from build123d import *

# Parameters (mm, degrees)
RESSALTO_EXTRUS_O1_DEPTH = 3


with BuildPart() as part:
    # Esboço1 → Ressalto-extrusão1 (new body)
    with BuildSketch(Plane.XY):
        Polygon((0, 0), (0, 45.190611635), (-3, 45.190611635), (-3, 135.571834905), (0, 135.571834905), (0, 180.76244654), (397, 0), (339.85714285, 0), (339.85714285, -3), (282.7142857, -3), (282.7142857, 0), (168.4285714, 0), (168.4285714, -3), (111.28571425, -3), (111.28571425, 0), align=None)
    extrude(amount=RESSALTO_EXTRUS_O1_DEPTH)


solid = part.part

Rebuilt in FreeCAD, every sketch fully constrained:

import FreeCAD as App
import Part
import Sketcher
Q = App.Units.Quantity

doc = App.newDocument("Part")
body = doc.addObject("PartDesign::Body", "Body")

# Sketch on XY plane
sketch1 = body.newObject("Sketcher::SketchObject", "Sketch")
sketch1.AttachmentSupport = (doc.getObject("XY_Plane"), [""])
sketch1.MapMode = "FlatFace"
sketch1.addGeometry(Part.LineSegment(App.Vector(0, 45.2, 0), App.Vector(0, 0, 0)), False)
sketch1.addGeometry(Part.LineSegment(App.Vector(0, 0, 0), App.Vector(111.3, 0, 0)), False)
sketch1.addGeometry(Part.LineSegment(App.Vector(111.3, 0, 0), App.Vector(111.3, -3, 0)), False)
sketch1.addGeometry(Part.LineSegment(App.Vector(111.3, -3, 0), App.Vector(168.4, -3, 0)), False)
sketch1.addGeometry(Part.LineSegment(App.Vector(168.4, -3, 0), App.Vector(168.4, 0, 0)), False)
sketch1.addGeometry(Part.LineSegment(App.Vector(168.4, 0, 0), App.Vector(282.7, 0, 0)), False)
sketch1.addGeometry(Part.LineSegment(App.Vector(282.7, 0, 0), App.Vector(282.7, -3, 0)), False)
sketch1.addGeometry(Part.LineSegment(App.Vector(282.7, -3, 0), App.Vector(339.9, -3, 0)), False)
sketch1.addGeometry(Part.LineSegment(App.Vector(339.9, -3, 0), App.Vector(339.9, 0, 0)), False)
sketch1.addGeometry(Part.LineSegment(App.Vector(339.9, 0, 0), App.Vector(397, 0, 0)), False)
sketch1.addGeometry(Part.LineSegment(App.Vector(397, 0, 0), App.Vector(0, 180.8, 0)), False)
sketch1.addGeometry(Part.LineSegment(App.Vector(0, 180.8, 0), App.Vector(0, 135.6, 0)), False)
sketch1.addGeometry(Part.LineSegment(App.Vector(0, 135.6, 0), App.Vector(-3, 135.6, 0)), False)
sketch1.addGeometry(Part.LineSegment(App.Vector(-3, 135.6, 0), App.Vector(-3, 45.2, 0)), False)
sketch1.addGeometry(Part.LineSegment(App.Vector(-3, 45.2, 0), App.Vector(0, 45.2, 0)), False)
sketch1.addConstraint(Sketcher.Constraint("Coincident", 0, 2, 1, 1))
sketch1.addConstraint(Sketcher.Constraint("Coincident", 1, 2, 2, 1))
sketch1.addConstraint(Sketcher.Constraint("Coincident", 2, 2, 3, 1))
sketch1.addConstraint(Sketcher.Constraint("Coincident", 3, 2, 4, 1))
sketch1.addConstraint(Sketcher.Constraint("Coincident", 4, 2, 5, 1))
sketch1.addConstraint(Sketcher.Constraint("Coincident", 5, 2, 6, 1))
sketch1.addConstraint(Sketcher.Constraint("Coincident", 6, 2, 7, 1))
sketch1.addConstraint(Sketcher.Constraint("Coincident", 7, 2, 8, 1))
sketch1.addConstraint(Sketcher.Constraint("Coincident", 8, 2, 9, 1))
sketch1.addConstraint(Sketcher.Constraint("Coincident", 9, 2, 10, 1))
sketch1.addConstraint(Sketcher.Constraint("Coincident", 10, 2, 11, 1))
sketch1.addConstraint(Sketcher.Constraint("Coincident", 11, 2, 12, 1))
sketch1.addConstraint(Sketcher.Constraint("Coincident", 12, 2, 13, 1))
sketch1.addConstraint(Sketcher.Constraint("Coincident", 13, 2, 14, 1))
sketch1.addConstraint(Sketcher.Constraint("Coincident", 14, 2, 0, 1))
sketch1.addConstraint(Sketcher.Constraint("Vertical", 0))
sketch1.addConstraint(Sketcher.Constraint("Horizontal", 1))
sketch1.addConstraint(Sketcher.Constraint("Vertical", 2))
sketch1.addConstraint(Sketcher.Constraint("Horizontal", 3))
sketch1.addConstraint(Sketcher.Constraint("Vertical", 4))
sketch1.addConstraint(Sketcher.Constraint("Horizontal", 5))
sketch1.addConstraint(Sketcher.Constraint("Vertical", 6))
sketch1.addConstraint(Sketcher.Constraint("Horizontal", 7))
sketch1.addConstraint(Sketcher.Constraint("Vertical", 8))
sketch1.addConstraint(Sketcher.Constraint("Horizontal", 9))
sketch1.addConstraint(Sketcher.Constraint("Vertical", 11))
sketch1.addConstraint(Sketcher.Constraint("Horizontal", 12))
sketch1.addConstraint(Sketcher.Constraint("Vertical", 13))
sketch1.addConstraint(Sketcher.Constraint("Horizontal", 14))
sketch1.addConstraint(Sketcher.Constraint("Coincident", 0, 2, -1, 1))
sketch1.addConstraint(Sketcher.Constraint("PointOnObject", 4, 2, -1))
sketch1.addConstraint(Sketcher.Constraint("PointOnObject", 8, 2, -1))
sketch1.addConstraint(Sketcher.Constraint("PointOnObject", 10, 2, -2))
sketch1.addConstraint(Sketcher.Constraint("Horizontal", 3, 2, 6, 2))
sketch1.addConstraint(Sketcher.Constraint("Equal", 3, 7))
sketch1.addConstraint(Sketcher.Constraint("Equal", 7, 9))
sketch1.addConstraint(Sketcher.Constraint("Equal", 14, 2))
sketch1.addConstraint(Sketcher.Constraint("Equal", 0, 11))
sketch1.addConstraint(Sketcher.Constraint("DistanceX", 12, 2, 12, 1, Q("3 mm")))
sketch1.addConstraint(Sketcher.Constraint("DistanceX", -1, 1, 9, 2, Q("397 mm")))
sketch1.addConstraint(Sketcher.Constraint("DistanceY", 0, 2, 0, 1, Q("45.190612 mm")))
sketch1.addConstraint(Sketcher.Constraint("DistanceX", 1, 1, 1, 2, Q("111.285714 mm")))
sketch1.addConstraint(Sketcher.Constraint("DistanceX", 3, 1, 3, 2, Q("57.142857 mm")))
sketch1.addConstraint(Sketcher.Constraint("DistanceY", 13, 2, 13, 1, Q("90.381223 mm")))
pad1 = body.newObject("PartDesign::Pad", "Pad")
pad1.Profile = sketch1
pad1.Length = 3

doc.recompute()
